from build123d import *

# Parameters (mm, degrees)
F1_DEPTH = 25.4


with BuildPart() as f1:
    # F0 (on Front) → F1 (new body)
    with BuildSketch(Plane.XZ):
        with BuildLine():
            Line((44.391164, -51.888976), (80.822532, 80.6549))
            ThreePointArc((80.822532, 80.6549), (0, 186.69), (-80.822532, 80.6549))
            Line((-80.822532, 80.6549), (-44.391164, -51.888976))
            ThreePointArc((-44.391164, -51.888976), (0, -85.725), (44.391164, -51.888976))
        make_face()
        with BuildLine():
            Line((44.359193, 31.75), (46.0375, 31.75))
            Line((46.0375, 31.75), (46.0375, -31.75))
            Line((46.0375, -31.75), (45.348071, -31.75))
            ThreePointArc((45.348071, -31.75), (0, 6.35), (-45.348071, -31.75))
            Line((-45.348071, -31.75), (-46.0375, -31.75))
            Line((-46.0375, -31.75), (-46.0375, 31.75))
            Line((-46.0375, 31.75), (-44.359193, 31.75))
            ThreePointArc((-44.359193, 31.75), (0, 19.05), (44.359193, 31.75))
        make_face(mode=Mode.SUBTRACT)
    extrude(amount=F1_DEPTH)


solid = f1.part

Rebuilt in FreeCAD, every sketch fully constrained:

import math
import FreeCAD as App
import Part
import Sketcher

V = App.Vector
Q = App.Units.Quantity

doc = App.newDocument("Part")
body = doc.addObject("PartDesign::Body", "Body")

# Sketch on XZ plane
sketch1 = body.newObject("Sketcher::SketchObject", "Sketch")
sketch1.AttachmentSupport = (doc.getObject("XZ_Plane"), [""])
sketch1.MapMode = "FlatFace"
sketch1.addGeometry(Part.LineSegment(V(44.4, -51.9, 0), V(80.8, 80.7, 0)), False)
sketch1.addGeometry(Part.ArcOfCircle(Part.Circle(V(0, 102.9, 0), V(0, 0, 1), 83.8), math.radians(-15), math.radians(195)), False)
sketch1.addGeometry(Part.LineSegment(V(-80.8, 80.7, 0), V(-44.4, -51.9, 0)), False)
sketch1.addGeometry(Part.ArcOfCircle(Part.Circle(V(0, -39.7, 0), V(0, 0, 1), 46), math.radians(-165), math.radians(-15)), False)
sketch1.addGeometry(Part.ArcOfCircle(Part.Circle(V(0, 102.9, 0), V(0, 0, 1), 83.8), math.radians(-122), math.radians(-58)), False)
sketch1.addGeometry(Part.LineSegment(V(44.4, 31.8, 0), V(46, 31.8, 0)), False)
sketch1.addGeometry(Part.LineSegment(V(46, 31.8, 0), V(46, -31.8, 0)), False)
sketch1.addGeometry(Part.LineSegment(V(46, -31.8, 0), V(45.3, -31.8, 0)), False)
sketch1.addGeometry(Part.ArcOfCircle(Part.Circle(V(0, -39.7, 0), V(0, 0, 1), 46), math.radians(10), math.radians(170)), False)
sketch1.addGeometry(Part.LineSegment(V(-45.3, -31.8, 0), V(-46, -31.8, 0)), False)
sketch1.addGeometry(Part.LineSegment(V(-46, -31.8, 0), V(-46, 31.8, 0)), False)
sketch1.addGeometry(Part.LineSegment(V(-46, 31.8, 0), V(-44.4, 31.8, 0)), False)
sketch1.addConstraint(Sketcher.Constraint("Tangent", 0, 2, 1, 1))
sketch1.addConstraint(Sketcher.Constraint("Tangent", 1, 2, 2, 1))
sketch1.addConstraint(Sketcher.Constraint("Tangent", 2, 2, 3, 1))
sketch1.addConstraint(Sketcher.Constraint("Tangent", 3, 2, 0, 1))
sketch1.addConstraint(Sketcher.Constraint("Coincident", 4, 2, 5, 1))
sketch1.addConstraint(Sketcher.Constraint("Coincident", 5, 2, 6, 1))
sketch1.addConstraint(Sketcher.Constraint("Coincident", 6, 2, 7, 1))
sketch1.addConstraint(Sketcher.Constraint("Coincident", 7, 2, 8, 1))
sketch1.addConstraint(Sketcher.Constraint("Coincident", 8, 2, 9, 1))
sketch1.addConstraint(Sketcher.Constraint("Coincident", 9, 2, 10, 1))
sketch1.addConstraint(Sketcher.Constraint("Coincident", 10, 2, 11, 1))
sketch1.addConstraint(Sketcher.Constraint("Coincident", 11, 2, 4, 1))
sketch1.addConstraint(Sketcher.Constraint("Horizontal", 5))
sketch1.addConstraint(Sketcher.Constraint("Vertical", 6))
sketch1.addConstraint(Sketcher.Constraint("Horizontal", 7))
sketch1.addConstraint(Sketcher.Constraint("Horizontal", 9))
sketch1.addConstraint(Sketcher.Constraint("Vertical", 10))
sketch1.addConstraint(Sketcher.Constraint("Horizontal", 11))
sketch1.addConstraint(Sketcher.Constraint("Coincident", 4, 3, 1, 3))
sketch1.addConstraint(Sketcher.Constraint("Coincident", 8, 3, 3, 3))
sketch1.addConstraint(Sketcher.Constraint("Equal", 1, 4))
sketch1.addConstraint(Sketcher.Constraint("Equal", 3, 8))
sketch1.addConstraint(Sketcher.Constraint("Symmetric", 5, 2, 9, 2, -1, 1))
sketch1.addConstraint(Sketcher.Constraint("Symmetric", 0, 2, 1, 2, -2))
sketch1.addConstraint(Sketcher.Constraint("Horizontal", 7, 2, 8, 2))
sketch1.addConstraint(Sketcher.Constraint("Horizontal", 5, 2, 10, 2))
sketch1.addConstraint(Sketcher.Constraint("Radius", 1, Q("3.3 in")))
sketch1.addConstraint(Sketcher.Constraint("DistanceY", 6, 2, 6, 1, Q("2.5 in")))
sketch1.addConstraint(Sketcher.Constraint("Radius", 3, Q("1.8125 in")))
sketch1.addConstraint(Sketcher.Constraint("DistanceY", 4, 2, 4, 3, Q("2.8 in")))
sketch1.addConstraint(Sketcher.Constraint("DistanceY", 3, 3, -1, 1, Q("1.5625 in")))
sketch1.addConstraint(Sketcher.Constraint("DistanceX", -1, 1, 5, 2, Q("1.8125 in")))
pad1 = body.newObject("PartDesign::Pad", "Pad")
pad1.Profile = sketch1
pad1.Length = Q("1 in")

doc.recompute()
